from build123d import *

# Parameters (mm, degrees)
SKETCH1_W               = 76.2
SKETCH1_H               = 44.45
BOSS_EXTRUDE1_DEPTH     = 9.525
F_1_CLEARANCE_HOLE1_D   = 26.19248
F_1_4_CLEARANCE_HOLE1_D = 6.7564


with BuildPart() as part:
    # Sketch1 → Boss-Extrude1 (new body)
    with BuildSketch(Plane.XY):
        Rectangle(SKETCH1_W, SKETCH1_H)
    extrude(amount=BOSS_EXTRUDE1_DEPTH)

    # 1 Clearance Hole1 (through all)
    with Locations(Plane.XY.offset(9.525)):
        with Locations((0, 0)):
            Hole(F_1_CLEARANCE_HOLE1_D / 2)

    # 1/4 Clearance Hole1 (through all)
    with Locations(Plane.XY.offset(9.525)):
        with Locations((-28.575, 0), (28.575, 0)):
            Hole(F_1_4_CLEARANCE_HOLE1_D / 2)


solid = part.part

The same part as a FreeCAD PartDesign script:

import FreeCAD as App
import Part
import Sketcher

V = App.Vector
Q = App.Units.Quantity


def add_polygon(sketch, points):
    """Adds a closed chain of lines whose ends are joined by coincident constraints."""
    first, n = sketch.GeometryCount, len(points)
    for a, b in zip(points, points[1:] + points[:1]):
        sketch.addGeometry(Part.LineSegment(App.Vector(*a, 0), App.Vector(*b, 0)), False)
    for i in range(n):
        sketch.addConstraint(Sketcher.Constraint("Coincident", first + i, 2, first + (i + 1) % n, 1))

doc = App.newDocument("Part")
body = doc.addObject("PartDesign::Body", "Body")

sketch1 = body.newObject("Sketcher::SketchObject", "Sketch")
sketch1.AttachmentSupport = (doc.getObject("XY_Plane"), [""])
sketch1.MapMode = "FlatFace"
add_polygon(sketch1, [(-38, 22), (-38, -22), (38, -22), (38, 22)])
sketch1.addConstraint([
    Sketcher.Constraint("Vertical", 0),
    Sketcher.Constraint("Horizontal", 1),
    Sketcher.Constraint("Vertical", 2),
    Sketcher.Constraint("Horizontal", 3),
    Sketcher.Constraint("Symmetric", 0, 2, 2, 2, -1, 1),
    Sketcher.Constraint("DistanceX", 1, 1, 1, 2, Q("3 in")),
    Sketcher.Constraint("DistanceY", 0, 2, 0, 1, Q("1.75 in")),
])
pad1 = body.newObject("PartDesign::Pad", "Pad")
pad1.Profile = sketch1
pad1.Length = Q("0.375 in")

sketch2 = body.newObject("Sketcher::SketchObject", "Sketch001")
sketch2.AttachmentSupport = (doc.getObject("XY_Plane"), [""])
sketch2.MapMode = "FlatFace"
sketch2.AttachmentOffset = App.Placement(V(0, 0, 0.375 * 25.4), App.Rotation())
sketch2.addGeometry(Part.Circle(V(0, 0, 0), V(0, 0, 1), 13), False)
sketch2.addConstraint([
    Sketcher.Constraint("Coincident", 0, 3, -1, 1),
    Sketcher.Constraint("Diameter", 0, Q("1.0312 in")),
])
doc.recompute()
hole = body.newObject("PartDesign::Hole", "Hole")
hole.Profile = sketch2
hole.ThreadType = "None"
hole.Diameter = Q("1.0312 in")
hole.DepthType = "ThroughAll"

sketch3 = body.newObject("Sketcher::SketchObject", "Sketch002")
sketch3.AttachmentSupport = (doc.getObject("XY_Plane"), [""])
sketch3.MapMode = "FlatFace"
sketch3.AttachmentOffset = App.Placement(V(0, 0, 0.375 * 25.4), App.Rotation())
sketch3.addGeometry([
    Part.Circle(V(-28.6, 0, 0), V(0, 0, 1), 3.4),
    Part.Circle(V(28.6, 0, 0), V(0, 0, 1), 3.4),
], False)
sketch3.addConstraint([
    Sketcher.Constraint("Equal", 0, 1),
    Sketcher.Constraint("Symmetric", 0, 3, 1, 3, -1, 1),
    Sketcher.Constraint("PointOnObject", 0, 3, -1),
    Sketcher.Constraint("Diameter", 0, Q("0.266 in")),
    Sketcher.Constraint("DistanceX", 0, 3, 1, 3, Q("2.25 in")),
])
doc.recompute()
hole2 = body.newObject("PartDesign::Hole", "Hole001")
hole2.Profile = sketch3
hole2.ThreadType = "None"
hole2.Diameter = Q("0.266 in")
hole2.DepthType = "ThroughAll"

doc.recompute()
